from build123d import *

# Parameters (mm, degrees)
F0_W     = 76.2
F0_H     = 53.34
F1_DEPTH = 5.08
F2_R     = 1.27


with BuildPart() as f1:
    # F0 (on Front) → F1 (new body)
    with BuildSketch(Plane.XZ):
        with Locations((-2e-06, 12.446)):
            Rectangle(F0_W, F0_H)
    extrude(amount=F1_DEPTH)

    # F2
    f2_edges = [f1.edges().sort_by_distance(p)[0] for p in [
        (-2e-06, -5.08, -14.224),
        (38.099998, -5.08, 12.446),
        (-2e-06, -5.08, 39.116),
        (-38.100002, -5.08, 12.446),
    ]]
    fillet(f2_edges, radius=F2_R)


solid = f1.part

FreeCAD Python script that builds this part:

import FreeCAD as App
import Part
import Sketcher
Q = App.Units.Quantity


def edges_at(feature, points):
    """Names of the edges that pass closest to the given points."""
    edges = feature.Shape.Edges
    near = lambda p: min(range(len(edges)), key=lambda i: edges[i].distToShape(Part.Vertex(*p))[0])
    return sorted({f"Edge{near(p) + 1}" for p in points})


def add_polygon(sketch, points):
    """Adds a closed chain of lines whose ends are joined by coincident constraints."""
    first, n = sketch.GeometryCount, len(points)
    for a, b in zip(points, points[1:] + points[:1]):
        sketch.addGeometry(Part.LineSegment(App.Vector(*a, 0), App.Vector(*b, 0)), False)
    for i in range(n):
        sketch.addConstraint(Sketcher.Constraint("Coincident", first + i, 2, first + (i + 1) % n, 1))

doc = App.newDocument("Part")
body = doc.addObject("PartDesign::Body", "Body")

# Sketch on XZ plane
sketch1 = body.newObject("Sketcher::SketchObject", "Sketch")
sketch1.AttachmentSupport = (doc.getObject("XZ_Plane"), [""])
sketch1.MapMode = "FlatFace"
add_polygon(sketch1, [(-38, 39), (-38, -14), (38, -14), (38, 39)])  # lines 0-3
sketch1.addConstraint(Sketcher.Constraint("Vertical", 0))
sketch1.addConstraint(Sketcher.Constraint("Horizontal", 1))
sketch1.addConstraint(Sketcher.Constraint("Vertical", 2))
sketch1.addConstraint(Sketcher.Constraint("Horizontal", 3))
sketch1.addConstraint(Sketcher.Constraint("DistanceX", 1, 1, 1, 2, Q("3 in")))
sketch1.addConstraint(Sketcher.Constraint("DistanceY", 0, 2, 0, 1, Q("2.1 in")))
sketch1.addConstraint(Sketcher.Constraint("DistanceX", 0, 2, -1, 1, Q("1.5000001 in")))
sketch1.addConstraint(Sketcher.Constraint("DistanceY", 0, 2, -1, 1, Q("0.56 in")))
pad1 = body.newObject("PartDesign::Pad", "Pad")
pad1.Profile = sketch1
pad1.Length = Q("0.2 in")
doc.recompute()

fillet = body.newObject("PartDesign::Fillet", "Fillet")
fillet.Base = (pad1, edges_at(pad1, [
    (0, -5.08, -14.224),
    (38.1, -5.08, 12.446),
    (0, -5.08, 39.116),
    (-38.1, -5.08, 12.446),
]))
fillet.Radius = Q("0.05 in")

doc.recompute()
